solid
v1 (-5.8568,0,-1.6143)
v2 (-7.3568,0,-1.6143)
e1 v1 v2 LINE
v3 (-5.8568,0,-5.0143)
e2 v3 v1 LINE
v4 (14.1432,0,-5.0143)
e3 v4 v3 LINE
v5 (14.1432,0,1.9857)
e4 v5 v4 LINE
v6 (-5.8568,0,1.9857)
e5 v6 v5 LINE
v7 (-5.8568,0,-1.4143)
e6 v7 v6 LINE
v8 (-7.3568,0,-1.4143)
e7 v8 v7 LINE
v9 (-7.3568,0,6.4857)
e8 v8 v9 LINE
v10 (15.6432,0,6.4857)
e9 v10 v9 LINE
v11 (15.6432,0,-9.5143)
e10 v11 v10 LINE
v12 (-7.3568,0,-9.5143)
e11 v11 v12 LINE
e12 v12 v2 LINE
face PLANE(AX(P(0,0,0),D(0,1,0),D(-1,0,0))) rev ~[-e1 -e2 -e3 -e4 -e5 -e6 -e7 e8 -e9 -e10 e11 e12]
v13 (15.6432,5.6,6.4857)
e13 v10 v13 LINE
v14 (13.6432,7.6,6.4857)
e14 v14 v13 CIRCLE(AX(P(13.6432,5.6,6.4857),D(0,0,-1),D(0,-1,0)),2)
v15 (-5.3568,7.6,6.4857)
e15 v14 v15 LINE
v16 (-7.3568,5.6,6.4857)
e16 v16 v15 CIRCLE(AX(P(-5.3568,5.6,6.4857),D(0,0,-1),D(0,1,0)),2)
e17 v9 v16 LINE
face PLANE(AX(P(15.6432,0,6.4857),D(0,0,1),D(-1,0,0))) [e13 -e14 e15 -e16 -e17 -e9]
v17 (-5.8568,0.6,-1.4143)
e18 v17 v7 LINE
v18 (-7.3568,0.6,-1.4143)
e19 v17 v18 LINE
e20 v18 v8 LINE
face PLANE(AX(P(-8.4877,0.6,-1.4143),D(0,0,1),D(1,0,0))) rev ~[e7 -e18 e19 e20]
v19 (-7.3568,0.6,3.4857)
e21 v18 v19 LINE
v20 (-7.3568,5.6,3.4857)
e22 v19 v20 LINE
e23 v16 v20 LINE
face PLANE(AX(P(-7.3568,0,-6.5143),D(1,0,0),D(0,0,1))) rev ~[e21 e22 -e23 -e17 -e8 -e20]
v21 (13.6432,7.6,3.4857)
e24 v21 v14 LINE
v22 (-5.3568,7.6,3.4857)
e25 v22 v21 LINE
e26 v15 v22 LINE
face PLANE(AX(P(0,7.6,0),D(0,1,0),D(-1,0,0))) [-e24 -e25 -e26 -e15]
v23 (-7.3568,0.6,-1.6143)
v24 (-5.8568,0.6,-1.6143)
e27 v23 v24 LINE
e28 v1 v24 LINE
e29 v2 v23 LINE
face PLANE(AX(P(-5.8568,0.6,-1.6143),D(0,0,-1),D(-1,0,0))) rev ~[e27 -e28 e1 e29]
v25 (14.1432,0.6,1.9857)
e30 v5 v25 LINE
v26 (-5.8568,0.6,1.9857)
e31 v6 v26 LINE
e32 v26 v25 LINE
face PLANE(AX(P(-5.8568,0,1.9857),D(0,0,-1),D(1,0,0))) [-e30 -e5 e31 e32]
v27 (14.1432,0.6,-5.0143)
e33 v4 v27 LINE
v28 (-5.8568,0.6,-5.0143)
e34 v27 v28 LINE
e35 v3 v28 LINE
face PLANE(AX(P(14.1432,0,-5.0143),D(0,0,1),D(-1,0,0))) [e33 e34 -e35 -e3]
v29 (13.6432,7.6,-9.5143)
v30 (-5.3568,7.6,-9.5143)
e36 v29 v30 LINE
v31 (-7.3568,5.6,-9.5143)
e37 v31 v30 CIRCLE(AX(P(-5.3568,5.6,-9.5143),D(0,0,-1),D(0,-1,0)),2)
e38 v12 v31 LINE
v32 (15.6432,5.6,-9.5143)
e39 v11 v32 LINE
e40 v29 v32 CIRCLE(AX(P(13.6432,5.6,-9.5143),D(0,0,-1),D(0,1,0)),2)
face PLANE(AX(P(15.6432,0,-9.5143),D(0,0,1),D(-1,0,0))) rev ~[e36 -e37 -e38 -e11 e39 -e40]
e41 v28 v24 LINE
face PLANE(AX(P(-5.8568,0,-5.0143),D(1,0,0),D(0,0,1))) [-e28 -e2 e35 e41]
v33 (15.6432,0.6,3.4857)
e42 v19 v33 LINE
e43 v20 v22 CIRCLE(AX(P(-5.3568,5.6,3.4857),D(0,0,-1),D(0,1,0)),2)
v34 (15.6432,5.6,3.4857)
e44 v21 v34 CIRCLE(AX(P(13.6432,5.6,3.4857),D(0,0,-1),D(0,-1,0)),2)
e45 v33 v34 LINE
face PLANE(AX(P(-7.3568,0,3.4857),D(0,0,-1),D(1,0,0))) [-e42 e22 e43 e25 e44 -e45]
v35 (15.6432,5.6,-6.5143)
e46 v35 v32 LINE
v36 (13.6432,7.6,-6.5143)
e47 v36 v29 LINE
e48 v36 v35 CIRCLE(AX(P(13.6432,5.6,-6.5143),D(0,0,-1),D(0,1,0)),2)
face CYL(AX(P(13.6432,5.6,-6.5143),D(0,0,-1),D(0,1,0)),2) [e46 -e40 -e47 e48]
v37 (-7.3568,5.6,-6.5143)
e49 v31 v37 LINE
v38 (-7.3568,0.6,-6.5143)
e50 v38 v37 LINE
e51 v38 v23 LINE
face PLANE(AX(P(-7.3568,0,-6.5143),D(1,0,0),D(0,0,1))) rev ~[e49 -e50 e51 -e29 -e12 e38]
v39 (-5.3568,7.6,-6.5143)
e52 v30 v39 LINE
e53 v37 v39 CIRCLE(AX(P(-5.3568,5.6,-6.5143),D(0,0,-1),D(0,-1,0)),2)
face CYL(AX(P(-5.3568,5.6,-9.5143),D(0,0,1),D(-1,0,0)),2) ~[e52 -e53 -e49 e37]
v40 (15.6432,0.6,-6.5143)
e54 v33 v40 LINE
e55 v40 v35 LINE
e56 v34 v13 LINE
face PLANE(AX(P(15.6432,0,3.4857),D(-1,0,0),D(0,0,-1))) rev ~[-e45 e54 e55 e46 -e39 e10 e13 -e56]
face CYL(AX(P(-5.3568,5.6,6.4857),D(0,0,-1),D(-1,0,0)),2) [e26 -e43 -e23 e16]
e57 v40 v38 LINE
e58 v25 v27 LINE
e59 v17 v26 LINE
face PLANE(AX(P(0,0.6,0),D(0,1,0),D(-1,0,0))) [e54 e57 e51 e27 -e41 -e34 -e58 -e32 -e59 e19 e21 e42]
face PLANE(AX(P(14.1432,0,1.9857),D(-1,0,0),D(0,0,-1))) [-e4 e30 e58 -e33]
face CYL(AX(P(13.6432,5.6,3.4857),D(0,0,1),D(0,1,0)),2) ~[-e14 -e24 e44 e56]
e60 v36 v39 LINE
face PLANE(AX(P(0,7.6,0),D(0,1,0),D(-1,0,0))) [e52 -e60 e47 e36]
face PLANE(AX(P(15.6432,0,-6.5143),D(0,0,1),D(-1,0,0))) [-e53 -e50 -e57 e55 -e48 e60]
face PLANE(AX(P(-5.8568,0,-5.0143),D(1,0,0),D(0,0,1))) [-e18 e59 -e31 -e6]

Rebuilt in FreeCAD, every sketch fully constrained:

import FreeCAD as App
import Part
import Sketcher


def edges_at(feature, points):
    """Names of the edges that pass closest to the given points."""
    edges = feature.Shape.Edges
    near = lambda p: min(range(len(edges)), key=lambda i: edges[i].distToShape(Part.Vertex(*p))[0])
    return sorted({f"Edge{near(p) + 1}" for p in points})

doc = App.newDocument("Part")
params = doc.addObject("Spreadsheet::Sheet", "Params")
for row, (alias, value) in enumerate([
    ("sketch1_width", "20 mm"),
    ("sketch1_height", "7 mm"),
    ("pad1_length", "0.6 mm"),
    ("sketch2_height", "3 mm"),
    ("sketch2_width", "23 mm"),
    ("pad2_length", "7.6 mm"),
    ("fillet_radius", "2 mm"),
    ("sketch3_height", "0.2 mm"),
], start=1):
    params.set(f"A{row}", alias)
    params.set(f"B{row}", "=" + value)
    params.setAlias(f"B{row}", alias)

body = doc.addObject("PartDesign::Body", "Body")

# Sketch on XZ plane
sketch1 = body.newObject("Sketcher::SketchObject", "Sketch")
sketch1.AttachmentSupport = (doc.getObject("XZ_Plane"), [""])
sketch1.MapMode = "FlatFace"
sketch1.addGeometry(Part.LineSegment(App.Vector(-7, -7, 0), App.Vector(-7, 3, 0)), False)
sketch1.addGeometry(Part.LineSegment(App.Vector(-7, 3, 0), App.Vector(16, 3, 0)), False)
sketch1.addGeometry(Part.LineSegment(App.Vector(16, 3, 0), App.Vector(16, -7, 0)), False)
sketch1.addGeometry(Part.LineSegment(App.Vector(16, -7, 0), App.Vector(-7, -7, 0)), False)
sketch1.addGeometry(Part.LineSegment(App.Vector(14, 2, 0), App.Vector(-6, 2, 0)), False)
sketch1.addGeometry(Part.LineSegment(App.Vector(-6, 2, 0), App.Vector(-6, -5, 0)), False)
sketch1.addGeometry(Part.LineSegment(App.Vector(-6, -5, 0), App.Vector(14, -5, 0)), False)
sketch1.addGeometry(Part.LineSegment(App.Vector(14, -5, 0), App.Vector(14, 2, 0)), False)
sketch1.addConstraint(Sketcher.Constraint("Coincident", 0, 2, 1, 1))
sketch1.addConstraint(Sketcher.Constraint("Coincident", 1, 2, 2, 1))
sketch1.addConstraint(Sketcher.Constraint("Coincident", 2, 2, 3, 1))
sketch1.addConstraint(Sketcher.Constraint("Coincident", 3, 2, 0, 1))
sketch1.addConstraint(Sketcher.Constraint("Coincident", 4, 2, 5, 1))
sketch1.addConstraint(Sketcher.Constraint("Coincident", 5, 2, 6, 1))
sketch1.addConstraint(Sketcher.Constraint("Coincident", 6, 2, 7, 1))
sketch1.addConstraint(Sketcher.Constraint("Coincident", 7, 2, 4, 1))
sketch1.addConstraint(Sketcher.Constraint("Vertical", 0))
sketch1.addConstraint(Sketcher.Constraint("Horizontal", 1))
sketch1.addConstraint(Sketcher.Constraint("Vertical", 2))
sketch1.addConstraint(Sketcher.Constraint("Horizontal", 3))
sketch1.addConstraint(Sketcher.Constraint("Horizontal", 4))
sketch1.addConstraint(Sketcher.Constraint("Vertical", 5))
sketch1.addConstraint(Sketcher.Constraint("Horizontal", 6))
sketch1.addConstraint(Sketcher.Constraint("Vertical", 7))
sketch1.addConstraint(Sketcher.Constraint("DistanceX", 4, 2, 4, 1, 20.0))
sketch1.addConstraint(Sketcher.Constraint("DistanceY", 5, 2, 5, 1, 7.0))
sketch1.addConstraint(Sketcher.Constraint("DistanceX", 0, 2, 4, 2, 1.5))
sketch1.addConstraint(Sketcher.Constraint("DistanceY", 4, 2, 0, 2, 1.5))
sketch1.addConstraint(Sketcher.Constraint("DistanceY", 3, 2, 5, 2, 1.5))
sketch1.addConstraint(Sketcher.Constraint("DistanceX", 6, 2, 2, 2, 1.5))
sketch1.addConstraint(Sketcher.Constraint("DistanceX", 0, 2, -1, 1, 7.3568))
sketch1.addConstraint(Sketcher.Constraint("DistanceY", -1, 1, 0, 2, 3.4857))
sketch1.setExpression("Constraints[16]", "Params.sketch1_width")
sketch1.setExpression("Constraints[17]", "Params.sketch1_height")
pad1 = body.newObject("PartDesign::Pad", "Pad")
pad1.Profile = sketch1
pad1.setExpression("Length", "Params.pad1_length")
pad1.Reversed = True

# Sketch on XZ plane
sketch2 = body.newObject("Sketcher::SketchObject", "Sketch001")
sketch2.AttachmentSupport = (doc.getObject("XZ_Plane"), [""])
sketch2.MapMode = "FlatFace"
sketch2.addGeometry(Part.LineSegment(App.Vector(15.6, 3.5, 0), App.Vector(-7.4, 3.5, 0)), False)
sketch2.addGeometry(Part.LineSegment(App.Vector(-7.4, 3.5, 0), App.Vector(-7.4, 6.5, 0)), False)
sketch2.addGeometry(Part.LineSegment(App.Vector(-7.4, 6.5, 0), App.Vector(15.6, 6.5, 0)), False)
sketch2.addGeometry(Part.LineSegment(App.Vector(15.6, 6.5, 0), App.Vector(15.6, 3.5, 0)), False)
sketch2.addGeometry(Part.LineSegment(App.Vector(-7.4, -9.5, 0), App.Vector(-7.4, -6.5, 0)), False)
sketch2.addGeometry(Part.LineSegment(App.Vector(-7.4, -6.5, 0), App.Vector(15.6, -6.5, 0)), False)
sketch2.addGeometry(Part.LineSegment(App.Vector(15.6, -6.5, 0), App.Vector(15.6, -9.5, 0)), False)
sketch2.addGeometry(Part.LineSegment(App.Vector(15.6, -9.5, 0), App.Vector(-7.4, -9.5, 0)), False)
sketch2.addConstraint(Sketcher.Constraint("Coincident", 0, 2, 1, 1))
sketch2.addConstraint(Sketcher.Constraint("Coincident", 1, 2, 2, 1))
sketch2.addConstraint(Sketcher.Constraint("Coincident", 2, 2, 3, 1))
sketch2.addConstraint(Sketcher.Constraint("Coincident", 3, 2, 0, 1))
sketch2.addConstraint(Sketcher.Constraint("Coincident", 4, 2, 5, 1))
sketch2.addConstraint(Sketcher.Constraint("Coincident", 5, 2, 6, 1))
sketch2.addConstraint(Sketcher.Constraint("Coincident", 6, 2, 7, 1))
sketch2.addConstraint(Sketcher.Constraint("Coincident", 7, 2, 4, 1))
sketch2.addConstraint(Sketcher.Constraint("Horizontal", 0))
sketch2.addConstraint(Sketcher.Constraint("Vertical", 1))
sketch2.addConstraint(Sketcher.Constraint("Horizontal", 2))
sketch2.addConstraint(Sketcher.Constraint("Vertical", 3))
sketch2.addConstraint(Sketcher.Constraint("Vertical", 4))
sketch2.addConstraint(Sketcher.Constraint("Horizontal", 5))
sketch2.addConstraint(Sketcher.Constraint("Vertical", 6))
sketch2.addConstraint(Sketcher.Constraint("Horizontal", 7))
sketch2.addConstraint(Sketcher.Constraint("Vertical", 1, 2, 4, 2))
sketch2.addConstraint(Sketcher.Constraint("Vertical", 3, 2, 5, 2))
sketch2.addConstraint(Sketcher.Constraint("Equal", 3, 4))
sketch2.addConstraint(Sketcher.Constraint("DistanceY", 1, 1, 1, 2, 3.0))
sketch2.addConstraint(Sketcher.Constraint("DistanceX", 0, 2, 0, 1, 23.0))
sketch2.addConstraint(Sketcher.Constraint("DistanceY", 4, 2, 0, 2, 10.0))
sketch2.addConstraint(Sketcher.Constraint("DistanceX", 0, 2, -1, 1, 7.3568))
sketch2.addConstraint(Sketcher.Constraint("DistanceY", -1, 1, 0, 2, 3.4857))
sketch2.setExpression("Constraints[19]", "Params.sketch2_height")
sketch2.setExpression("Constraints[20]", "Params.sketch2_width")
pad2 = body.newObject("PartDesign::Pad", "Pad001")
pad2.Profile = sketch2
pad2.setExpression("Length", "Params.pad2_length")
pad2.Reversed = True
doc.recompute()

fillet = body.newObject("PartDesign::Fillet", "Fillet")
fillet.Base = (pad2, edges_at(pad2, [
    (-7.357, 7.6, 4.986),
    (15.643, 7.6, -8.014),
    (15.643, 7.6, 4.986),
    (-7.357, 7.6, -8.014),
]))
fillet.setExpression("Radius", "Params.fillet_radius")

# Sketch on XZ plane
sketch3 = body.newObject("Sketcher::SketchObject", "Sketch002")
sketch3.AttachmentSupport = (doc.getObject("XZ_Plane"), [""])
sketch3.MapMode = "FlatFace"
sketch3.AttachmentOffset = App.Placement(App.Vector(0, 0, -0.6), App.Rotation())
sketch3.addGeometry(Part.LineSegment(App.Vector(-8.49, -1.61, 0), App.Vector(-8.49, -1.41, 0)), False)
sketch3.addGeometry(Part.LineSegment(App.Vector(-8.49, -1.41, 0), App.Vector(-3.13, -1.41, 0)), False)
sketch3.addGeometry(Part.LineSegment(App.Vector(-3.13, -1.41, 0), App.Vector(-3.13, -1.61, 0)), False)
sketch3.addGeometry(Part.LineSegment(App.Vector(-3.13, -1.61, 0), App.Vector(-8.49, -1.61, 0)), False)
sketch3.addConstraint(Sketcher.Constraint("Coincident", 0, 2, 1, 1))
sketch3.addConstraint(Sketcher.Constraint("Coincident", 1, 2, 2, 1))
sketch3.addConstraint(Sketcher.Constraint("Coincident", 2, 2, 3, 1))
sketch3.addConstraint(Sketcher.Constraint("Coincident", 3, 2, 0, 1))
sketch3.addConstraint(Sketcher.Constraint("Vertical", 0))
sketch3.addConstraint(Sketcher.Constraint("Horizontal", 1))
sketch3.addConstraint(Sketcher.Constraint("Vertical", 2))
sketch3.addConstraint(Sketcher.Constraint("Horizontal", 3))
sketch3.addConstraint(Sketcher.Constraint("DistanceY", 0, 1, 0, 2, 0.2))
sketch3.addConstraint(Sketcher.Constraint("DistanceX", 1, 1, 1, 2, 5.3598))
sketch3.addConstraint(Sketcher.Constraint("DistanceX", 1, 2, -1, 1, 3.128))
sketch3.addConstraint(Sketcher.Constraint("DistanceY", 0, 2, -1, 1, 1.4143))
sketch3.setExpression("Constraints[8]", "Params.sketch3_height")
pocket1 = body.newObject("PartDesign::Pocket", "Pocket")
pocket1.Profile = sketch3
pocket1.Type = "ThroughAll"
pocket1.Reversed = True

doc.recompute()
